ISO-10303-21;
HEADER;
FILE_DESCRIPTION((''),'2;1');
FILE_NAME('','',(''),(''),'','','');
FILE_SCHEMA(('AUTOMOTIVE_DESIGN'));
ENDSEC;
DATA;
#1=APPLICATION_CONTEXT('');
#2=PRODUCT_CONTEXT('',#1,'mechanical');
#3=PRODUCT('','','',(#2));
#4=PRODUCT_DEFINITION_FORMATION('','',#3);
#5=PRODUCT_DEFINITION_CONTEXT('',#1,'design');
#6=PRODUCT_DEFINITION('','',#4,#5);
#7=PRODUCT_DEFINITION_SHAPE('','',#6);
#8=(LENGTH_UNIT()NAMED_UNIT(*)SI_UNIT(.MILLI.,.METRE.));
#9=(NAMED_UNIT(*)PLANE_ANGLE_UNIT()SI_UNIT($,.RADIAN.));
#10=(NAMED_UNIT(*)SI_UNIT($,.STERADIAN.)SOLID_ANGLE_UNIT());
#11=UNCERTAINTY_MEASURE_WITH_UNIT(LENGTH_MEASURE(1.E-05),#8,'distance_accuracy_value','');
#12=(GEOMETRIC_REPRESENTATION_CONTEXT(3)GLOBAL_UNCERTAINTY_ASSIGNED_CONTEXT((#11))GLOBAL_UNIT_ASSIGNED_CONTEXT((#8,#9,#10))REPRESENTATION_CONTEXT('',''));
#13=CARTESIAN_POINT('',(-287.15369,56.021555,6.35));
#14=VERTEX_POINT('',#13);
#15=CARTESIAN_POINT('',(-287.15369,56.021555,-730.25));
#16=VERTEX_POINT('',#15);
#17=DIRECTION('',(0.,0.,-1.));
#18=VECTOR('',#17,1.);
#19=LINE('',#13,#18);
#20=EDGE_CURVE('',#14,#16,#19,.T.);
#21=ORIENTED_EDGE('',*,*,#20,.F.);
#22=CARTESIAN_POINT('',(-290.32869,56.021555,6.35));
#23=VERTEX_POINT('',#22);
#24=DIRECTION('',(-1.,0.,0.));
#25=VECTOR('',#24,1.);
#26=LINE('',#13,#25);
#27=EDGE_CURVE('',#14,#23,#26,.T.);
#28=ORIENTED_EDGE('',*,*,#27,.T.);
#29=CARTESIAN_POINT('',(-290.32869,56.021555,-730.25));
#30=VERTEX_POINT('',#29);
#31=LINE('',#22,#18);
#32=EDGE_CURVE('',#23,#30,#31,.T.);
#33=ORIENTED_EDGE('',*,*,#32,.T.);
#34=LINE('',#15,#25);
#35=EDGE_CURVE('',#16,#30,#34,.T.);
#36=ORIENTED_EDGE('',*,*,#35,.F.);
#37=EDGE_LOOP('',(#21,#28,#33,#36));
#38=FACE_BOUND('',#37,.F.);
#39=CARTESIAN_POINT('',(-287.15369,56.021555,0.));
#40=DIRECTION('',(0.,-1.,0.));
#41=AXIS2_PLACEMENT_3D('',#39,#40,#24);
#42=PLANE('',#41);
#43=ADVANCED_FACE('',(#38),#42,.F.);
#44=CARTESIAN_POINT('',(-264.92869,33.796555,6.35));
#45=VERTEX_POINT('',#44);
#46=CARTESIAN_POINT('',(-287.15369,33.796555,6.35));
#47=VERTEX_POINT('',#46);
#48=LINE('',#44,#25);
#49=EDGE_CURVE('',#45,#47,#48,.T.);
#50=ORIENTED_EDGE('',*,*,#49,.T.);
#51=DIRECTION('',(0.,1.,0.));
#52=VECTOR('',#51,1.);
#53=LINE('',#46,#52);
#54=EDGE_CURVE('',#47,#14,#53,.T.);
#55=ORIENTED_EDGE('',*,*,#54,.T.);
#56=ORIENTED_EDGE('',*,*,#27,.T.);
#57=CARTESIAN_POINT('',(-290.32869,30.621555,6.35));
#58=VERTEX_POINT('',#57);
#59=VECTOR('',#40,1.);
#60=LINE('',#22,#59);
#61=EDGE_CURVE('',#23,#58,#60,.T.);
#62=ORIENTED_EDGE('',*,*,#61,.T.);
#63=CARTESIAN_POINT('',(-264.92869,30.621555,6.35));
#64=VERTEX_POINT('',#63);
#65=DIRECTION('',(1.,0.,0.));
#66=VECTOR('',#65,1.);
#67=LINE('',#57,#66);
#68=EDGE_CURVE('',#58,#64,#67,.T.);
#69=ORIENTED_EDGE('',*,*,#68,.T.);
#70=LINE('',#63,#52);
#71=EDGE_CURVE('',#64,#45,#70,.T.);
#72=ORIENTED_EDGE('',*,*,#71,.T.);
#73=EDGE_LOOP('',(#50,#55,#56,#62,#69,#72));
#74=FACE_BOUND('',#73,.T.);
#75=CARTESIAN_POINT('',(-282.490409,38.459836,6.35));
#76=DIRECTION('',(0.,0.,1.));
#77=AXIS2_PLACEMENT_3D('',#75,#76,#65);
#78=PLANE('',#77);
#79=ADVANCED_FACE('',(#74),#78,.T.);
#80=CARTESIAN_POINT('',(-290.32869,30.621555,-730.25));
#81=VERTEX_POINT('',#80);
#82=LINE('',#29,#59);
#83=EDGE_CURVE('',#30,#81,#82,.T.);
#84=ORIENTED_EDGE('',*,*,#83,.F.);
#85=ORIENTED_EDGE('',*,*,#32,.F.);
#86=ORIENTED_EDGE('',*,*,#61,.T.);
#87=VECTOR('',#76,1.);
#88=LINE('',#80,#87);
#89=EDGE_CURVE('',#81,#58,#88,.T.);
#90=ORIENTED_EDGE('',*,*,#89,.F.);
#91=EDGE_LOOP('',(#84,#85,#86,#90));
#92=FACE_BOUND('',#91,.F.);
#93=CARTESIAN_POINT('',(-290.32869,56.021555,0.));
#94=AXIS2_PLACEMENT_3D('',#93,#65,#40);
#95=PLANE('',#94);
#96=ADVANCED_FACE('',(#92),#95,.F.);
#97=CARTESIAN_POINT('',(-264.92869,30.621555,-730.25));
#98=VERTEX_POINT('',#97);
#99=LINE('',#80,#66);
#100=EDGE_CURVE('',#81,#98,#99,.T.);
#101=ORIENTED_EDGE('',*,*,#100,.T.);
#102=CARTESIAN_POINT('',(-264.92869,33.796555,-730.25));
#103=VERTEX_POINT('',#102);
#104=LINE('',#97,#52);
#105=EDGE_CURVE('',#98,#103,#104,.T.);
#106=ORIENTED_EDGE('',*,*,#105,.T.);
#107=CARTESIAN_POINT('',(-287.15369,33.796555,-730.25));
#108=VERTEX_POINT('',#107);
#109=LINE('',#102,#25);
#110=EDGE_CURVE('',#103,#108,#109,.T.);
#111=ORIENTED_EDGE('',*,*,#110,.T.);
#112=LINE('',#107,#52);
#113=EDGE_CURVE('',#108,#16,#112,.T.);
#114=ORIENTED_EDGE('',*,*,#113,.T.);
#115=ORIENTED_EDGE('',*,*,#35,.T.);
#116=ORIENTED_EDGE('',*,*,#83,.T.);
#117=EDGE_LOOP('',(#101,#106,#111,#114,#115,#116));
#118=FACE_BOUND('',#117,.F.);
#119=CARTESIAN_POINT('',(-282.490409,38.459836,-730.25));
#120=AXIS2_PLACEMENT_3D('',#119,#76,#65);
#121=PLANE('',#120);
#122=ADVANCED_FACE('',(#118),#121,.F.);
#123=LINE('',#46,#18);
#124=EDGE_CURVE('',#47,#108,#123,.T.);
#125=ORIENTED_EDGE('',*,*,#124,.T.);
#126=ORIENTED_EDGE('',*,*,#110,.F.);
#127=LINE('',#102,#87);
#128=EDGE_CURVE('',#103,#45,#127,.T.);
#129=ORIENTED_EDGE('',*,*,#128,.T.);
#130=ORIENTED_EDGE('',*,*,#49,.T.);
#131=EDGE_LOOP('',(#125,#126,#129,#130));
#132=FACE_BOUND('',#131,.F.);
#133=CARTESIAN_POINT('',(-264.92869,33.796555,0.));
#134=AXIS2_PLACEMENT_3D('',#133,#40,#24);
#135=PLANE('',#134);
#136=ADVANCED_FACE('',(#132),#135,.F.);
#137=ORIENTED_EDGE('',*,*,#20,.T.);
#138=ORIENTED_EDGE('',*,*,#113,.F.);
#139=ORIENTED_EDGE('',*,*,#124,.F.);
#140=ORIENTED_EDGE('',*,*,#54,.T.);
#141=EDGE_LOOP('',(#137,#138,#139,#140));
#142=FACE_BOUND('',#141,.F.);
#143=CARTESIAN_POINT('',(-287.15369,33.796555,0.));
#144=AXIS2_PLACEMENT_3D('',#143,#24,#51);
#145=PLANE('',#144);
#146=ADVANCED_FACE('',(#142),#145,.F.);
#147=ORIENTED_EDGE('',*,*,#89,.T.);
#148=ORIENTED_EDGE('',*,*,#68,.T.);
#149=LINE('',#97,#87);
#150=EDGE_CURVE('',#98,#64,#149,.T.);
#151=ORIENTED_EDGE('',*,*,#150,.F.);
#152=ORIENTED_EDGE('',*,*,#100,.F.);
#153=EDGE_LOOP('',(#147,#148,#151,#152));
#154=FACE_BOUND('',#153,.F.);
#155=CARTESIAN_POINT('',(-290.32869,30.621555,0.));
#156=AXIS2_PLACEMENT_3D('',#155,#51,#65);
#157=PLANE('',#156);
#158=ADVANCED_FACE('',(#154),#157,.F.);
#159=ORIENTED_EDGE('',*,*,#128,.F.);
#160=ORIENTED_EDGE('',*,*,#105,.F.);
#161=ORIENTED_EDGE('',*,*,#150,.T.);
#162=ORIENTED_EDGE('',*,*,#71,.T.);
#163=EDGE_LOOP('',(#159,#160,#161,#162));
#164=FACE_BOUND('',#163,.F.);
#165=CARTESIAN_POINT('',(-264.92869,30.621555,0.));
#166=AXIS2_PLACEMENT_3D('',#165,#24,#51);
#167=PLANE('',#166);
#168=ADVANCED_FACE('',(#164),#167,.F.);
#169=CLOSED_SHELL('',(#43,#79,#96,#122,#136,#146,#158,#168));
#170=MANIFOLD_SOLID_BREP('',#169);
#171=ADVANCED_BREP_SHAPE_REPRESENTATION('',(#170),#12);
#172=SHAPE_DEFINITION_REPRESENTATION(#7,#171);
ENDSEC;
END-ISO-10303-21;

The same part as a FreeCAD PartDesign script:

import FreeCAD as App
import Part
import Sketcher

V = App.Vector
Q = App.Units.Quantity


def add_polygon(sketch, points):
    """Adds a closed chain of lines whose ends are joined by coincident constraints."""
    first, n = sketch.GeometryCount, len(points)
    for a, b in zip(points, points[1:] + points[:1]):
        sketch.addGeometry(Part.LineSegment(App.Vector(*a, 0), App.Vector(*b, 0)), False)
    for i in range(n):
        sketch.addConstraint(Sketcher.Constraint("Coincident", first + i, 2, first + (i + 1) % n, 1))

doc = App.newDocument("Part")
body = doc.addObject("PartDesign::Body", "Body")

# Sketch on XY plane
sketch1 = doc.addObject("Sketcher::SketchObject", "Sketch")
body.addObject(sketch1)
sketch1.AttachmentSupport = (doc.XY_Plane, [""])
sketch1.MapMode = "FlatFace"
add_polygon(sketch1, [(-290.32869, 56.021555), (-290.32869, 30.621555), (-264.92869, 30.621555), (-264.92869, 33.796555), (-287.15369, 33.796555), (-287.15369, 56.021555)])  # lines 0-5
sketch1.addConstraint([
    Sketcher.Constraint("Vertical", 0),
    Sketcher.Constraint("Horizontal", 1),
    Sketcher.Constraint("Vertical", 2),
    Sketcher.Constraint("Horizontal", 3),
    Sketcher.Constraint("Vertical", 4),
    Sketcher.Constraint("Horizontal", 5),
    Sketcher.Constraint("Equal", 1, 0),
    Sketcher.Constraint("Equal", 5, 2),
    Sketcher.Constraint("DistanceX", 1, 1, 1, 2, Q("1 in")),
    Sketcher.Constraint("DistanceX", 3, 2, 3, 1, Q("0.875 in")),
    Sketcher.Constraint("DistanceX", 0, 2, -1, 1, Q("290.32869 mm")),
    Sketcher.Constraint("DistanceY", -1, 1, 0, 2, Q("30.621555 mm")),
])
pad1 = doc.addObject("PartDesign::Pad", "Pad")
body.addObject(pad1)
pad1.Profile = sketch1
pad1.Length = Q("28.75 in")
pad1.Reversed = True

# Sketch on XY plane
sketch2 = doc.addObject("Sketcher::SketchObject", "Sketch001")
body.addObject(sketch2)
sketch2.AttachmentSupport = (doc.XY_Plane, [""])
sketch2.MapMode = "FlatFace"
add_polygon(sketch2, [(-290.32869, 56.021555), (-290.32869, 30.621555), (-264.92869, 30.621555), (-264.92869, 33.796555), (-287.15369, 33.796555), (-287.15369, 56.021555)])  # lines 0-5
sketch2.addConstraint([
    Sketcher.Constraint("Vertical", 0),
    Sketcher.Constraint("Horizontal", 1),
    Sketcher.Constraint("Vertical", 2),
    Sketcher.Constraint("Horizontal", 3),
    Sketcher.Constraint("Vertical", 4),
    Sketcher.Constraint("Horizontal", 5),
    Sketcher.Constraint("Equal", 1, 0),
    Sketcher.Constraint("Equal", 5, 2),
    Sketcher.Constraint("DistanceX", 1, 1, 1, 2, Q("1 in")),
    Sketcher.Constraint("DistanceX", 3, 2, 3, 1, Q("0.875 in")),
    Sketcher.Constraint("DistanceX", 0, 2, -1, 1, Q("290.32869 mm")),
    Sketcher.Constraint("DistanceY", -1, 1, 0, 2, Q("30.621555 mm")),
])
pad2 = doc.addObject("PartDesign::Pad", "Pad001")
body.addObject(pad2)
pad2.Profile = sketch2
pad2.Length = Q("0.25 in")

doc.recompute()
